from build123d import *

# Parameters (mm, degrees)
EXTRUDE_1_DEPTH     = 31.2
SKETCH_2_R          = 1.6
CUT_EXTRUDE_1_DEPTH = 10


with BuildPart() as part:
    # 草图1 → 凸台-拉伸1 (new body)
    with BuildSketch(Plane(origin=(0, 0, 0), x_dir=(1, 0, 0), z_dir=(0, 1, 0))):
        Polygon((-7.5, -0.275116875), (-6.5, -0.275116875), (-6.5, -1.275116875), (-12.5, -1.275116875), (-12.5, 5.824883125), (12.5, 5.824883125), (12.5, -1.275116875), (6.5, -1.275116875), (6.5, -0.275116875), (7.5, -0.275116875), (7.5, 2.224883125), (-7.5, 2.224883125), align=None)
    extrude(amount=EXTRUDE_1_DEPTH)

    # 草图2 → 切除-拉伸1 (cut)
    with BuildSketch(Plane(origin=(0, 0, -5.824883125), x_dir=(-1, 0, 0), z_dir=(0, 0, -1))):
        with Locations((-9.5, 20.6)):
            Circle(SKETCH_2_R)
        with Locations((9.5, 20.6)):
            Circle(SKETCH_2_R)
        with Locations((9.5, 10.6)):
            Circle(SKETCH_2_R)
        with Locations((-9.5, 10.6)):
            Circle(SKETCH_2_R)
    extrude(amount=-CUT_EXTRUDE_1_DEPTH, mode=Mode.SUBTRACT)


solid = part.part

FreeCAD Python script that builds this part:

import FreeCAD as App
import Part
import Sketcher
from FreeCAD import Vector


def add_polygon(sketch, points):
    """Adds a closed chain of lines whose ends are joined by coincident constraints."""
    first, n = sketch.GeometryCount, len(points)
    for a, b in zip(points, points[1:] + points[:1]):
        sketch.addGeometry(Part.LineSegment(App.Vector(*a, 0), App.Vector(*b, 0)), False)
    for i in range(n):
        sketch.addConstraint(Sketcher.Constraint("Coincident", first + i, 2, first + (i + 1) % n, 1))

doc = App.newDocument("Part")
body = doc.addObject("PartDesign::Body", "Body")

sketch1 = body.newObject("Sketcher::SketchObject", "Sketch")
sketch1.AttachmentSupport = (doc.getObject("XZ_Plane"), [""])
sketch1.MapMode = "FlatFace"
add_polygon(sketch1, [(-6.5, 0.275117), (-7.5, 0.275117), (-7.5, -2.224883), (7.5, -2.224883), (7.5, 0.275117), (6.5, 0.275117), (6.5, 1.275117), (12.5, 1.275117), (12.5, -5.824883), (-12.5, -5.824883), (-12.5, 1.275117), (-6.5, 1.275117)])
sketch1.addConstraint([
    Sketcher.Constraint("Horizontal", 0),
    Sketcher.Constraint("Vertical", 1),
    Sketcher.Constraint("Horizontal", 2),
    Sketcher.Constraint("Vertical", 3),
    Sketcher.Constraint("Horizontal", 4),
    Sketcher.Constraint("Vertical", 5),
    Sketcher.Constraint("Horizontal", 6),
    Sketcher.Constraint("Vertical", 7),
    Sketcher.Constraint("Horizontal", 8),
    Sketcher.Constraint("Vertical", 9),
    Sketcher.Constraint("Horizontal", 10),
    Sketcher.Constraint("Vertical", 11),
    Sketcher.Constraint("Symmetric", 0, 2, 3, 2, -2),
    Sketcher.Constraint("Symmetric", 6, 2, 9, 2, -2),
    Sketcher.Constraint("Equal", 0, 4),
    Sketcher.Constraint("Equal", 4, 5),
    Sketcher.Constraint("DistanceX", 0, 2, 0, 1, 1.0),
    Sketcher.Constraint("DistanceX", 2, 1, 2, 2, 15.0),
    Sketcher.Constraint("DistanceX", 6, 1, 6, 2, 6.0),
    Sketcher.Constraint("DistanceY", 1, 2, 1, 1, 2.5),
    Sketcher.Constraint("DistanceY", 7, 2, 7, 1, 7.1),
    Sketcher.Constraint("DistanceY", -1, 1, 0, 2, 0.275117),
])
pad1 = body.newObject("PartDesign::Pad", "Pad")
pad1.Profile = sketch1
pad1.Length = 31.2
pad1.Reversed = True

sketch2 = body.newObject("Sketcher::SketchObject", "Sketch001")
sketch2.AttachmentSupport = (doc.getObject("XY_Plane"), [""])
sketch2.MapMode = "FlatFace"
sketch2.AttachmentOffset = App.Placement(Vector(0, 0, -5.824883), App.Rotation())
sketch2.addGeometry([
    Part.Circle(Vector(9.5, 20.6, 0), Vector(0, 0, 1), 1.6),
    Part.Circle(Vector(-9.5, 20.6, 0), Vector(0, 0, 1), 1.6),
    Part.Circle(Vector(-9.5, 10.6, 0), Vector(0, 0, 1), 1.6),
    Part.Circle(Vector(9.5, 10.6, 0), Vector(0, 0, 1), 1.6),
], False)
sketch2.addConstraint([
    Sketcher.Constraint("Equal", 0, 1),
    Sketcher.Constraint("Equal", 1, 2),
    Sketcher.Constraint("Equal", 2, 3),
    Sketcher.Constraint("Symmetric", 0, 3, 1, 3, -2),
    Sketcher.Constraint("Symmetric", 2, 3, 3, 3, -2),
    Sketcher.Constraint("Vertical", 1, 3, 2, 3),
    Sketcher.Constraint("Diameter", 0, 3.2),
    Sketcher.Constraint("DistanceX", 1, 3, 0, 3, 19.0),
    Sketcher.Constraint("DistanceY", 2, 3, 1, 3, 10.0),
    Sketcher.Constraint("DistanceY", -1, 1, 0, 3, 20.6),
])
pocket1 = body.newObject("PartDesign::Pocket", "Pocket")
pocket1.Profile = sketch2
pocket1.Length = 10
pocket1.Reversed = True

doc.recompute()
